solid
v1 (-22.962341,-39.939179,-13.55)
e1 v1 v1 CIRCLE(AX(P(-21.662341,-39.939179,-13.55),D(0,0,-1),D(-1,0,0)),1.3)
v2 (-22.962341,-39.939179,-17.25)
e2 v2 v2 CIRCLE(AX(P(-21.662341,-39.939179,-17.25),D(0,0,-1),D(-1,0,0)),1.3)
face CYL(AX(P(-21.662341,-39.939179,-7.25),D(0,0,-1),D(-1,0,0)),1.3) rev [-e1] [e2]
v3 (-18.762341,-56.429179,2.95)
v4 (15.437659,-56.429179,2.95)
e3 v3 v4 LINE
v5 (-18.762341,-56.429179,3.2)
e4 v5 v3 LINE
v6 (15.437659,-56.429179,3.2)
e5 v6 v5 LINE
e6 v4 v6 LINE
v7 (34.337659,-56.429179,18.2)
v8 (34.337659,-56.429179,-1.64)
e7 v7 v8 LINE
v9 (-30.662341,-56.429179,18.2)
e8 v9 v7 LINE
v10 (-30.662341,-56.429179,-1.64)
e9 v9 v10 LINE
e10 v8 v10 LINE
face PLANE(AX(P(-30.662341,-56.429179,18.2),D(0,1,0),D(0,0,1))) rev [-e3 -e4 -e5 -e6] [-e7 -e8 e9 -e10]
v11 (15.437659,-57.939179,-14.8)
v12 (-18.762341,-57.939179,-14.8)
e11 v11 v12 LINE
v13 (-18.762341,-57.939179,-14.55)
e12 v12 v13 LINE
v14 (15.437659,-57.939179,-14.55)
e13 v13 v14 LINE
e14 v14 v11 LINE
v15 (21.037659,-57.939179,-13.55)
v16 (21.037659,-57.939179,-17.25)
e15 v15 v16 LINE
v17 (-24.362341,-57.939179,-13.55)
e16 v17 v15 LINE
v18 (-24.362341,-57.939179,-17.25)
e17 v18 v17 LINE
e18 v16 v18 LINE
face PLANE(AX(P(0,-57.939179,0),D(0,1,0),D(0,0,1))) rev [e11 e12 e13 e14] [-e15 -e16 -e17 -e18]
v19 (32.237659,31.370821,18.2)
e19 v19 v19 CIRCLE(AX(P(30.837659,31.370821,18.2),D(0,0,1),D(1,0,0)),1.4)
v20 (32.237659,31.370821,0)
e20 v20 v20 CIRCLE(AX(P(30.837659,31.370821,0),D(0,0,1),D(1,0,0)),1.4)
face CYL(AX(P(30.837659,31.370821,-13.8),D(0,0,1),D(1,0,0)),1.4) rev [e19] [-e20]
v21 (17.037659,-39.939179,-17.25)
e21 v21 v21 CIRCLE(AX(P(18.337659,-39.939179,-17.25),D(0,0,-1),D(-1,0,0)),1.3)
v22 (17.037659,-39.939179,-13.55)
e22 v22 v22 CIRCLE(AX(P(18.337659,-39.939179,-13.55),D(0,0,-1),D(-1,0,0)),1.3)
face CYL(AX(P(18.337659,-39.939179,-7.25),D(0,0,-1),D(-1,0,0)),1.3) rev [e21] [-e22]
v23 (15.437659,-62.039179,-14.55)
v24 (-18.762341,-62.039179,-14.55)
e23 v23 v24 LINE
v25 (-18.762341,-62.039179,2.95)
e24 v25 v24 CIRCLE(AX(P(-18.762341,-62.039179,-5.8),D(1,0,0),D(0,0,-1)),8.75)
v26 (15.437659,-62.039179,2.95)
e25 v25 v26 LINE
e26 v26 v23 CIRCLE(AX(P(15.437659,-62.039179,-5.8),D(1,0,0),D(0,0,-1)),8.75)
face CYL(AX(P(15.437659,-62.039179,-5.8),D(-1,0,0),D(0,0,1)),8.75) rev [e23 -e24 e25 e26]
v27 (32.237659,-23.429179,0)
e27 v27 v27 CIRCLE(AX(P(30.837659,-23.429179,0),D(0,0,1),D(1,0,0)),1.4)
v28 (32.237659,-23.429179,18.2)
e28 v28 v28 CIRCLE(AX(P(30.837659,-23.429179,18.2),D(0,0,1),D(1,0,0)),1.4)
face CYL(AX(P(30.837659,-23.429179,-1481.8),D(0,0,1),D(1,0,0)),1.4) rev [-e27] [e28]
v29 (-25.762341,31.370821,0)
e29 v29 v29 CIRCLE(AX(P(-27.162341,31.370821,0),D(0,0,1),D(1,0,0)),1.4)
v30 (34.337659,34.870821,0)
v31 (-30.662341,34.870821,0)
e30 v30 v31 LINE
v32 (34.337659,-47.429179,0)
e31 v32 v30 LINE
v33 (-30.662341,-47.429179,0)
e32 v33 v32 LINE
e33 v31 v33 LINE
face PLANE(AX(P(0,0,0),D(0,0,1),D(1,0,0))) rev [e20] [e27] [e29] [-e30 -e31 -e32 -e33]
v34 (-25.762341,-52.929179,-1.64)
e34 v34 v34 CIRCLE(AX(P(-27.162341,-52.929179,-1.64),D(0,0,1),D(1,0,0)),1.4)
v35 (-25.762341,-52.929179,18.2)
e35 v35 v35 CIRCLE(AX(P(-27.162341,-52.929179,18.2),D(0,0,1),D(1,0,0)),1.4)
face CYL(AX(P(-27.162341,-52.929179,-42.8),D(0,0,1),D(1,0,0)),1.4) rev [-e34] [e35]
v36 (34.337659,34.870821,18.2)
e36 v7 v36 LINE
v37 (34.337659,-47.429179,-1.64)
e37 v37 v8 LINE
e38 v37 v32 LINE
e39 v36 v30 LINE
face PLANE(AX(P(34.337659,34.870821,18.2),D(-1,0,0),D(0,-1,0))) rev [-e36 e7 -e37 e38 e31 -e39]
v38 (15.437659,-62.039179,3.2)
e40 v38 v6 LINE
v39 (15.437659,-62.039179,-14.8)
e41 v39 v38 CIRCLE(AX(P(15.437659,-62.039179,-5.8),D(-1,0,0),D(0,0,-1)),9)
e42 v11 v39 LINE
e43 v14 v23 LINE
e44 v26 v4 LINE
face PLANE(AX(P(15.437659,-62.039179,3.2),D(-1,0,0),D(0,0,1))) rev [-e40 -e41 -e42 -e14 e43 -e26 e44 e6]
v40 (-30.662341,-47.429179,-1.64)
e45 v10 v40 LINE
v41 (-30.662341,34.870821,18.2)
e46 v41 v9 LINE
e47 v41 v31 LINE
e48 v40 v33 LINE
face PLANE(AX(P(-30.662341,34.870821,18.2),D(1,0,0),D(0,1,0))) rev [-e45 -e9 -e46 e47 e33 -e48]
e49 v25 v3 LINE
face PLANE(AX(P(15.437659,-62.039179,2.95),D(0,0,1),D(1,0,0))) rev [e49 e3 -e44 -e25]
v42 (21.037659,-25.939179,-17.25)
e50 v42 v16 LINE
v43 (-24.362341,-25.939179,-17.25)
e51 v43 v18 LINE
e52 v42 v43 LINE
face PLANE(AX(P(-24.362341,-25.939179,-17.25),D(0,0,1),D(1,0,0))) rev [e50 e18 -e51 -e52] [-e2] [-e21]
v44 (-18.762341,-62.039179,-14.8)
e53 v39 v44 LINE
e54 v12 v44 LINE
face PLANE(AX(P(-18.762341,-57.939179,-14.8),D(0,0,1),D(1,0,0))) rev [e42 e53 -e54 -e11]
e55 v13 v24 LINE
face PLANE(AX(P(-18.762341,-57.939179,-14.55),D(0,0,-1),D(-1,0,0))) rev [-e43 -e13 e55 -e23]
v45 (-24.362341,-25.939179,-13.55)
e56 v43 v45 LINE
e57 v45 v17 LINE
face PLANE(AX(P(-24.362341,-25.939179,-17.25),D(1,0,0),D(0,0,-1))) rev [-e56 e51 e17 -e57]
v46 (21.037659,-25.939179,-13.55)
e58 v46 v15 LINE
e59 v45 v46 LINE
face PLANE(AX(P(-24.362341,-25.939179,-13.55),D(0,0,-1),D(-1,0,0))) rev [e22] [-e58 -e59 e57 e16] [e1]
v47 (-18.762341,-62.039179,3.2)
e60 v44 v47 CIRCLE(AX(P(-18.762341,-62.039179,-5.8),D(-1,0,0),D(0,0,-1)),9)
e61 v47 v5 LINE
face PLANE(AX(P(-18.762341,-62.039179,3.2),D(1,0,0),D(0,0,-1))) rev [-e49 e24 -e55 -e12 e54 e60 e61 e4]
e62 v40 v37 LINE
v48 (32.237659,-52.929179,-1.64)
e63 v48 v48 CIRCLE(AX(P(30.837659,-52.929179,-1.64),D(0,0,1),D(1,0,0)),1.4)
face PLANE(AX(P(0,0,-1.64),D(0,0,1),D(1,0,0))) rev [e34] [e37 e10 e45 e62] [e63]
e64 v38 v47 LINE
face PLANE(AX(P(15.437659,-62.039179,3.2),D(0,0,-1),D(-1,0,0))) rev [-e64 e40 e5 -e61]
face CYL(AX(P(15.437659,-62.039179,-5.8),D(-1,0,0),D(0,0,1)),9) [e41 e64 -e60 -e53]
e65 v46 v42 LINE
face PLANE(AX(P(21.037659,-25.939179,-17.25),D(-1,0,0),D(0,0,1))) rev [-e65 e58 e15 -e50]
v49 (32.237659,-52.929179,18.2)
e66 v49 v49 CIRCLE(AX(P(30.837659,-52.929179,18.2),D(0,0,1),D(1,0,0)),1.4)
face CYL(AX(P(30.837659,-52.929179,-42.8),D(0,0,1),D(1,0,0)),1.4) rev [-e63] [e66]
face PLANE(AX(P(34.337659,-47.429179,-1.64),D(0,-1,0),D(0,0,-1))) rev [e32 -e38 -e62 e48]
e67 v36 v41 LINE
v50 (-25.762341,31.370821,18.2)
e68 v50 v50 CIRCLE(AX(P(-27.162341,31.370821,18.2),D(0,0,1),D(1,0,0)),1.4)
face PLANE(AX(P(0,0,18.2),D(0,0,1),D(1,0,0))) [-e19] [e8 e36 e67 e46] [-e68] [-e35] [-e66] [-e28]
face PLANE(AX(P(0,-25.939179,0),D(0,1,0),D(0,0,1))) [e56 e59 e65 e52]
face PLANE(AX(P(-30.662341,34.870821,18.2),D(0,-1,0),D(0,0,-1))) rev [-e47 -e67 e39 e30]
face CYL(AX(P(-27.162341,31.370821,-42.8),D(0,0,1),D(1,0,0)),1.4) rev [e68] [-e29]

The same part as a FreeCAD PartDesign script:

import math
import FreeCAD as App
import Part
import Sketcher
from FreeCAD import Vector

doc = App.newDocument("Part")
params = doc.addObject("Spreadsheet::Sheet", "Params")
for row, (alias, value) in enumerate([
    ("sketch1_width", "65 mm"),
    ("sketch1_height", "91.3 mm"),
    ("pad1_length", "18.2 mm"),
    ("sketch2_width", "65 mm"),
    ("sketch2_height", "9 mm"),
    ("pad2_length", "1.64 mm"),
    ("sketch3_width", "34.2 mm"),
    ("sketch3_height", "0.25 mm"),
    ("pad3_length", "5.61 mm"),
    ("sketch4_radius", "9 mm"),
    ("sketch4_radius2", "8.75 mm"),
    ("pad4_length", "34.2 mm"),
    ("sketch5_width", "34.2 mm"),
    ("sketch5_height", "0.25 mm"),
    ("pad5_length", "4.1 mm"),
    ("sketch6_width", "45.4 mm"),
    ("sketch6_height", "3.7 mm"),
    ("pad6_length", "32 mm"),
    ("sketch7_diameter", "2.8 mm"),
    ("pocket1_length", "32 mm"),
    ("sketch8_diameter", "2.8 mm"),
    ("pocket2_length", "61 mm"),
    ("sketch9_diameter", "2.8 mm"),
    ("pocket3_length", "61 mm"),
    ("sketch10_diameter", "2.8 mm"),
    ("pocket4_length", "61 mm"),
    ("sketch11_diameter", "2.6 mm"),
    ("pocket5_length", "10 mm"),
    ("sketch12_diameter", "2.6 mm"),
    ("pocket6_length", "10 mm"),
    ("sketch13_diameter", "2.8 mm"),
    ("pocket7_length", "1500 mm"),
], start=1):
    params.set(f"A{row}", alias)
    params.set(f"B{row}", "=" + value)
    params.setAlias(f"B{row}", alias)

body = doc.addObject("PartDesign::Body", "Body")

# Sketch on XY plane
sketch1 = doc.addObject("Sketcher::SketchObject", "Sketch")
body.addObject(sketch1)
sketch1.AttachmentSupport = (doc.XY_Plane, [""])
sketch1.MapMode = "FlatFace"
sketch1.addGeometry([
    Part.LineSegment(Vector(-30.662341, 34.870821, 0), Vector(-30.662341, -56.429179, 0)),
    Part.LineSegment(Vector(-30.662341, -56.429179, 0), Vector(34.337659, -56.429179, 0)),
    Part.LineSegment(Vector(34.337659, -56.429179, 0), Vector(34.337659, 34.870821, 0)),
    Part.LineSegment(Vector(34.337659, 34.870821, 0), Vector(-30.662341, 34.870821, 0)),
], False)
sketch1.addConstraint([
    Sketcher.Constraint("Coincident", 0, 2, 1, 1),
    Sketcher.Constraint("Coincident", 1, 2, 2, 1),
    Sketcher.Constraint("Coincident", 2, 2, 3, 1),
    Sketcher.Constraint("Coincident", 3, 2, 0, 1),
    Sketcher.Constraint("Vertical", 0),
    Sketcher.Constraint("Horizontal", 1),
    Sketcher.Constraint("Vertical", 2),
    Sketcher.Constraint("Horizontal", 3),
    Sketcher.Constraint("DistanceX", 1, 1, 1, 2, 65.0),
    Sketcher.Constraint("DistanceY", 0, 2, 0, 1, 91.3),
    Sketcher.Constraint("DistanceX", 0, 2, -1, 1, 30.662341),
    Sketcher.Constraint("DistanceY", 0, 2, -1, 1, 56.429179),
])
sketch1.setExpression("Constraints[8]", "Params.sketch1_width")
sketch1.setExpression("Constraints[9]", "Params.sketch1_height")
pad1 = doc.addObject("PartDesign::Pad", "Pad")
body.addObject(pad1)
pad1.Profile = sketch1
pad1.setExpression("Length", "Params.pad1_length")

# Sketch on XY plane
sketch2 = doc.addObject("Sketcher::SketchObject", "Sketch001")
body.addObject(sketch2)
sketch2.AttachmentSupport = (doc.XY_Plane, [""])
sketch2.MapMode = "FlatFace"
sketch2.addGeometry([
    Part.LineSegment(Vector(34.337659, -47.429179, 0), Vector(34.337659, -56.429179, 0)),
    Part.LineSegment(Vector(34.337659, -56.429179, 0), Vector(-30.662341, -56.429179, 0)),
    Part.LineSegment(Vector(-30.662341, -56.429179, 0), Vector(-30.662341, -47.429179, 0)),
    Part.LineSegment(Vector(-30.662341, -47.429179, 0), Vector(34.337659, -47.429179, 0)),
], False)
sketch2.addConstraint([
    Sketcher.Constraint("Coincident", 0, 2, 1, 1),
    Sketcher.Constraint("Coincident", 1, 2, 2, 1),
    Sketcher.Constraint("Coincident", 2, 2, 3, 1),
    Sketcher.Constraint("Coincident", 3, 2, 0, 1),
    Sketcher.Constraint("Vertical", 0),
    Sketcher.Constraint("Horizontal", 1),
    Sketcher.Constraint("Vertical", 2),
    Sketcher.Constraint("Horizontal", 3),
    Sketcher.Constraint("DistanceX", 1, 2, 1, 1, 65.0),
    Sketcher.Constraint("DistanceY", 0, 2, 0, 1, 9.0),
    Sketcher.Constraint("DistanceX", -1, 1, 0, 2, 34.337659),
    Sketcher.Constraint("DistanceY", 0, 2, -1, 1, 56.429179),
])
sketch2.setExpression("Constraints[8]", "Params.sketch2_width")
sketch2.setExpression("Constraints[9]", "Params.sketch2_height")
pad2 = doc.addObject("PartDesign::Pad", "Pad001")
body.addObject(pad2)
pad2.Profile = sketch2
pad2.setExpression("Length", "Params.pad2_length")
pad2.Reversed = True

# Sketch on XZ plane
sketch3 = doc.addObject("Sketcher::SketchObject", "Sketch002")
body.addObject(sketch3)
sketch3.AttachmentSupport = (doc.XZ_Plane, [""])
sketch3.MapMode = "FlatFace"
sketch3.AttachmentOffset = App.Placement(Vector(0, 0, 56.429179), App.Rotation())
sketch3.addGeometry([
    Part.LineSegment(Vector(-18.762341, 3.2, 0), Vector(-18.762341, 2.95, 0)),
    Part.LineSegment(Vector(-18.762341, 2.95, 0), Vector(15.437659, 2.95, 0)),
    Part.LineSegment(Vector(15.437659, 2.95, 0), Vector(15.437659, 3.2, 0)),
    Part.LineSegment(Vector(15.437659, 3.2, 0), Vector(-18.762341, 3.2, 0)),
], False)
sketch3.addConstraint([
    Sketcher.Constraint("Coincident", 0, 2, 1, 1),
    Sketcher.Constraint("Coincident", 1, 2, 2, 1),
    Sketcher.Constraint("Coincident", 2, 2, 3, 1),
    Sketcher.Constraint("Coincident", 3, 2, 0, 1),
    Sketcher.Constraint("Vertical", 0),
    Sketcher.Constraint("Horizontal", 1),
    Sketcher.Constraint("Vertical", 2),
    Sketcher.Constraint("Horizontal", 3),
    Sketcher.Constraint("DistanceX", 1, 1, 1, 2, 34.2),
    Sketcher.Constraint("DistanceY", 0, 2, 0, 1, 0.25),
    Sketcher.Constraint("DistanceY", -1, 1, 2, 2, 3.2),
    Sketcher.Constraint("DistanceX", 0, 2, -1, 1, 18.762341),
])
sketch3.setExpression("Constraints[8]", "Params.sketch3_width")
sketch3.setExpression("Constraints[9]", "Params.sketch3_height")
pad3 = doc.addObject("PartDesign::Pad", "Pad002")
body.addObject(pad3)
pad3.Profile = sketch3
pad3.setExpression("Length", "Params.pad3_length")

# Sketch on YZ plane
sketch4 = doc.addObject("Sketcher::SketchObject", "Sketch003")
body.addObject(sketch4)
sketch4.AttachmentSupport = (doc.YZ_Plane, [""])
sketch4.MapMode = "FlatFace"
sketch4.AttachmentOffset = App.Placement(Vector(0, 0, -18.762341), App.Rotation())
sketch4.addGeometry([
    Part.LineSegment(Vector(-62.039179, 3.2, 0), Vector(-62.039179, 2.95, 0)),
    Part.ArcOfCircle(Part.Circle(Vector(-62.039179, -5.8, 0), Vector(0, 0, 1), 8.75), math.radians(90), math.radians(270)),
    Part.LineSegment(Vector(-62.039179, -14.55, 0), Vector(-62.039179, -14.8, 0)),
    Part.ArcOfCircle(Part.Circle(Vector(-62.039179, -5.8, 0), Vector(0, 0, 1), 9), math.radians(90), math.radians(270)),
], False)
sketch4.addConstraint([
    Sketcher.Constraint("Coincident", 0, 2, 1, 1),
    Sketcher.Constraint("Coincident", 1, 2, 2, 1),
    Sketcher.Constraint("Coincident", 2, 2, 3, 2),
    Sketcher.Constraint("Coincident", 3, 1, 0, 1),
    Sketcher.Constraint("Vertical", 0),
    Sketcher.Constraint("Vertical", 2),
    Sketcher.Constraint("Coincident", 3, 3, 1, 3),
    Sketcher.Constraint("Vertical", 3, 3, 0, 2),
    Sketcher.Constraint("Vertical", 0, 2, 1, 2),
    Sketcher.Constraint("Radius", 3, 9.0),
    Sketcher.Constraint("Radius", 1, 8.75),
    Sketcher.Constraint("DistanceY", 1, 3, -1, 1, 5.8),
    Sketcher.Constraint("DistanceX", 1, 3, -1, 1, 62.039179),
])
sketch4.setExpression("Constraints[9]", "Params.sketch4_radius")
sketch4.setExpression("Constraints[10]", "Params.sketch4_radius2")
pad4 = doc.addObject("PartDesign::Pad", "Pad003")
body.addObject(pad4)
pad4.Profile = sketch4
pad4.setExpression("Length", "Params.pad4_length")

# Sketch on XZ plane
sketch5 = doc.addObject("Sketcher::SketchObject", "Sketch004")
body.addObject(sketch5)
sketch5.AttachmentSupport = (doc.XZ_Plane, [""])
sketch5.MapMode = "FlatFace"
sketch5.AttachmentOffset = App.Placement(Vector(0, 0, 62.039179), App.Rotation())
sketch5.addGeometry([
    Part.LineSegment(Vector(-18.762341, -14.8, 0), Vector(-18.762341, -14.55, 0)),
    Part.LineSegment(Vector(-18.762341, -14.55, 0), Vector(15.437659, -14.55, 0)),
    Part.LineSegment(Vector(15.437659, -14.55, 0), Vector(15.437659, -14.8, 0)),
    Part.LineSegment(Vector(15.437659, -14.8, 0), Vector(-18.762341, -14.8, 0)),
], False)
sketch5.addConstraint([
    Sketcher.Constraint("Coincident", 0, 2, 1, 1),
    Sketcher.Constraint("Coincident", 1, 2, 2, 1),
    Sketcher.Constraint("Coincident", 2, 2, 3, 1),
    Sketcher.Constraint("Coincident", 3, 2, 0, 1),
    Sketcher.Constraint("Vertical", 0),
    Sketcher.Constraint("Horizontal", 1),
    Sketcher.Constraint("Vertical", 2),
    Sketcher.Constraint("Horizontal", 3),
    Sketcher.Constraint("DistanceX", 1, 1, 1, 2, 34.2),
    Sketcher.Constraint("DistanceY", 0, 1, 0, 2, 0.25),
    Sketcher.Constraint("DistanceY", 2, 2, -1, 1, 14.8),
    Sketcher.Constraint("DistanceX", 0, 2, -1, 1, 18.762341),
])
sketch5.setExpression("Constraints[8]", "Params.sketch5_width")
sketch5.setExpression("Constraints[9]", "Params.sketch5_height")
pad5 = doc.addObject("PartDesign::Pad", "Pad004")
body.addObject(pad5)
pad5.Profile = sketch5
pad5.setExpression("Length", "Params.pad5_length")
pad5.Reversed = True

# Sketch on XZ plane
sketch6 = doc.addObject("Sketcher::SketchObject", "Sketch005")
body.addObject(sketch6)
sketch6.AttachmentSupport = (doc.XZ_Plane, [""])
sketch6.MapMode = "FlatFace"
sketch6.AttachmentOffset = App.Placement(Vector(0, 0, 57.939179), App.Rotation())
sketch6.addGeometry([
    Part.LineSegment(Vector(-24.362341, -17.25, 0), Vector(-24.362341, -13.55, 0)),
    Part.LineSegment(Vector(-24.362341, -13.55, 0), Vector(21.037659, -13.55, 0)),
    Part.LineSegment(Vector(21.037659, -13.55, 0), Vector(21.037659, -17.25, 0)),
    Part.LineSegment(Vector(21.037659, -17.25, 0), Vector(-24.362341, -17.25, 0)),
], False)
sketch6.addConstraint([
    Sketcher.Constraint("Coincident", 0, 2, 1, 1),
    Sketcher.Constraint("Coincident", 1, 2, 2, 1),
    Sketcher.Constraint("Coincident", 2, 2, 3, 1),
    Sketcher.Constraint("Coincident", 3, 2, 0, 1),
    Sketcher.Constraint("Vertical", 0),
    Sketcher.Constraint("Horizontal", 1),
    Sketcher.Constraint("Vertical", 2),
    Sketcher.Constraint("Horizontal", 3),
    Sketcher.Constraint("DistanceX", 1, 1, 1, 2, 45.4),
    Sketcher.Constraint("DistanceY", 0, 1, 0, 2, 3.7),
    Sketcher.Constraint("DistanceY", 0, 2, -1, 1, 13.55),
    Sketcher.Constraint("DistanceX", 0, 2, -1, 1, 24.362341),
])
sketch6.setExpression("Constraints[8]", "Params.sketch6_width")
sketch6.setExpression("Constraints[9]", "Params.sketch6_height")
pad6 = doc.addObject("PartDesign::Pad", "Pad005")
body.addObject(pad6)
pad6.Profile = sketch6
pad6.setExpression("Length", "Params.pad6_length")
pad6.Reversed = True

# Sketch on XY plane
sketch7 = doc.addObject("Sketcher::SketchObject", "Sketch006")
body.addObject(sketch7)
sketch7.AttachmentSupport = (doc.XY_Plane, [""])
sketch7.MapMode = "FlatFace"
sketch7.AttachmentOffset = App.Placement(Vector(0, 0, 18.2), App.Rotation())
sketch7.addGeometry(Part.Circle(Vector(30.837659, 31.370821, 0), Vector(0, 0, 1), 1.4), False)
sketch7.addConstraint([
    Sketcher.Constraint("Diameter", 0, 2.8),
    Sketcher.Constraint("DistanceX", -1, 1, 0, 3, 30.837659),
    Sketcher.Constraint("DistanceY", -1, 1, 0, 3, 31.370821),
])
sketch7.setExpression("Constraints[0]", "Params.sketch7_diameter")
pocket1 = doc.addObject("PartDesign::Pocket", "Pocket")
body.addObject(pocket1)
pocket1.Profile = sketch7
pocket1.setExpression("Length", "Params.pocket1_length")

# Sketch on XY plane
sketch8 = doc.addObject("Sketcher::SketchObject", "Sketch007")
body.addObject(sketch8)
sketch8.AttachmentSupport = (doc.XY_Plane, [""])
sketch8.MapMode = "FlatFace"
sketch8.AttachmentOffset = App.Placement(Vector(0, 0, 18.2), App.Rotation())
sketch8.addGeometry(Part.Circle(Vector(-27.162341, 31.370821, 0), Vector(0, 0, 1), 1.4), False)
sketch8.addConstraint([
    Sketcher.Constraint("Diameter", 0, 2.8),
    Sketcher.Constraint("DistanceX", 0, 3, -1, 1, 27.162341),
    Sketcher.Constraint("DistanceY", -1, 1, 0, 3, 31.370821),
])
sketch8.setExpression("Constraints[0]", "Params.sketch8_diameter")
pocket2 = doc.addObject("PartDesign::Pocket", "Pocket001")
body.addObject(pocket2)
pocket2.Profile = sketch8
pocket2.setExpression("Length", "Params.pocket2_length")

# Sketch on XY plane
sketch9 = doc.addObject("Sketcher::SketchObject", "Sketch008")
body.addObject(sketch9)
sketch9.AttachmentSupport = (doc.XY_Plane, [""])
sketch9.MapMode = "FlatFace"
sketch9.AttachmentOffset = App.Placement(Vector(0, 0, 18.2), App.Rotation())
sketch9.addGeometry(Part.Circle(Vector(30.837659, -52.929179, 0), Vector(0, 0, 1), 1.4), False)
sketch9.addConstraint([
    Sketcher.Constraint("Diameter", 0, 2.8),
    Sketcher.Constraint("DistanceX", -1, 1, 0, 3, 30.837659),
    Sketcher.Constraint("DistanceY", 0, 3, -1, 1, 52.929179),
])
sketch9.setExpression("Constraints[0]", "Params.sketch9_diameter")
pocket3 = doc.addObject("PartDesign::Pocket", "Pocket002")
body.addObject(pocket3)
pocket3.Profile = sketch9
pocket3.setExpression("Length", "Params.pocket3_length")

# Sketch on XY plane
sketch10 = doc.addObject("Sketcher::SketchObject", "Sketch009")
body.addObject(sketch10)
sketch10.AttachmentSupport = (doc.XY_Plane, [""])
sketch10.MapMode = "FlatFace"
sketch10.AttachmentOffset = App.Placement(Vector(0, 0, 18.2), App.Rotation())
sketch10.addGeometry(Part.Circle(Vector(-27.162341, -52.929179, 0), Vector(0, 0, 1), 1.4), False)
sketch10.addConstraint([
    Sketcher.Constraint("Diameter", 0, 2.8),
    Sketcher.Constraint("DistanceX", 0, 3, -1, 1, 27.162341),
    Sketcher.Constraint("DistanceY", 0, 3, -1, 1, 52.929179),
])
sketch10.setExpression("Constraints[0]", "Params.sketch10_diameter")
pocket4 = doc.addObject("PartDesign::Pocket", "Pocket003")
body.addObject(pocket4)
pocket4.Profile = sketch10
pocket4.setExpression("Length", "Params.pocket4_length")

# Sketch on XY plane
sketch11 = doc.addObject("Sketcher::SketchObject", "Sketch010")
body.addObject(sketch11)
sketch11.AttachmentSupport = (doc.XY_Plane, [""])
sketch11.MapMode = "FlatFace"
sketch11.AttachmentOffset = App.Placement(Vector(0, 0, -17.25), App.Rotation())
sketch11.addGeometry(Part.Circle(Vector(-21.662341, -39.939179, 0), Vector(0, 0, 1), 1.3), False)
sketch11.addConstraint([
    Sketcher.Constraint("Diameter", 0, 2.6),
    Sketcher.Constraint("DistanceX", 0, 3, -1, 1, 21.662341),
    Sketcher.Constraint("DistanceY", 0, 3, -1, 1, 39.939179),
])
sketch11.setExpression("Constraints[0]", "Params.sketch11_diameter")
pocket5 = doc.addObject("PartDesign::Pocket", "Pocket004")
body.addObject(pocket5)
pocket5.Profile = sketch11
pocket5.setExpression("Length", "Params.pocket5_length")
pocket5.Reversed = True

# Sketch on XY plane
sketch12 = doc.addObject("Sketcher::SketchObject", "Sketch011")
body.addObject(sketch12)
sketch12.AttachmentSupport = (doc.XY_Plane, [""])
sketch12.MapMode = "FlatFace"
sketch12.AttachmentOffset = App.Placement(Vector(0, 0, -17.25), App.Rotation())
sketch12.addGeometry(Part.Circle(Vector(18.337659, -39.939179, 0), Vector(0, 0, 1), 1.3), False)
sketch12.addConstraint([
    Sketcher.Constraint("Diameter", 0, 2.6),
    Sketcher.Constraint("DistanceX", -1, 1, 0, 3, 18.337659),
    Sketcher.Constraint("DistanceY", 0, 3, -1, 1, 39.939179),
])
sketch12.setExpression("Constraints[0]", "Params.sketch12_diameter")
pocket6 = doc.addObject("PartDesign::Pocket", "Pocket005")
body.addObject(pocket6)
pocket6.Profile = sketch12
pocket6.setExpression("Length", "Params.pocket6_length")
pocket6.Reversed = True

# Sketch on XY plane
sketch13 = doc.addObject("Sketcher::SketchObject", "Sketch012")
body.addObject(sketch13)
sketch13.AttachmentSupport = (doc.XY_Plane, [""])
sketch13.MapMode = "FlatFace"
sketch13.AttachmentOffset = App.Placement(Vector(0, 0, 18.2), App.Rotation())
sketch13.addGeometry(Part.Circle(Vector(30.837659, -23.429179, 0), Vector(0, 0, 1), 1.4), False)
sketch13.addConstraint([
    Sketcher.Constraint("Diameter", 0, 2.8),
    Sketcher.Constraint("DistanceX", -1, 1, 0, 3, 30.837659),
    Sketcher.Constraint("DistanceY", 0, 3, -1, 1, 23.429179),
])
sketch13.setExpression("Constraints[0]", "Params.sketch13_diameter")
pocket7 = doc.addObject("PartDesign::Pocket", "Pocket006")
body.addObject(pocket7)
pocket7.Profile = sketch13
pocket7.setExpression("Length", "Params.pocket7_length")

doc.recompute()
